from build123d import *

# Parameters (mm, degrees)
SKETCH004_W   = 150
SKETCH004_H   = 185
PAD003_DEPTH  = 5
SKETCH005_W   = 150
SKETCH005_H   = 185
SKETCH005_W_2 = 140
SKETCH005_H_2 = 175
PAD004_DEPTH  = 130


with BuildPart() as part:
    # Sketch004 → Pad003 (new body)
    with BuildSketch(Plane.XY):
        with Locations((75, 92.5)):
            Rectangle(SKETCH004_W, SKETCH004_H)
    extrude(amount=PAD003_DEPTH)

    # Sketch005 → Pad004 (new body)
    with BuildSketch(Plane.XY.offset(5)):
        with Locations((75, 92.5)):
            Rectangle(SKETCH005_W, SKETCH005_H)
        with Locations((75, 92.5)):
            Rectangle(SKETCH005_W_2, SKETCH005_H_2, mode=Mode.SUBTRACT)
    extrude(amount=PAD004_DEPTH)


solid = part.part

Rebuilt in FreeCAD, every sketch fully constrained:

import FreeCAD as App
import Part
import Sketcher

V = App.Vector

doc = App.newDocument("Part")
params = doc.addObject("Spreadsheet::Sheet", "Params")
for row, (alias, value) in enumerate([
    ("sketch1_width", "150 mm"),
    ("sketch1_height", "185 mm"),
    ("pad1_length", "5 mm"),
    ("sketch2_width", "150 mm"),
    ("sketch2_width2", "140 mm"),
    ("sketch2_height", "185 mm"),
    ("sketch2_height2", "175 mm"),
    ("pad2_length", "130 mm"),
], start=1):
    params.set(f"A{row}", alias)
    params.set(f"B{row}", "=" + value)
    params.setAlias(f"B{row}", alias)

body = doc.addObject("PartDesign::Body", "Body")

# Sketch on XY plane
sketch1 = body.newObject("Sketcher::SketchObject", "Sketch")
sketch1.AttachmentSupport = (doc.getObject("XY_Plane"), [""])
sketch1.MapMode = "FlatFace"
sketch1.addGeometry(Part.LineSegment(V(0, 185, 0), V(0, 0, 0)), False)
sketch1.addGeometry(Part.LineSegment(V(0, 0, 0), V(150, 0, 0)), False)
sketch1.addGeometry(Part.LineSegment(V(150, 0, 0), V(150, 185, 0)), False)
sketch1.addGeometry(Part.LineSegment(V(150, 185, 0), V(0, 185, 0)), False)
sketch1.addConstraint(Sketcher.Constraint("Coincident", 0, 2, 1, 1))
sketch1.addConstraint(Sketcher.Constraint("Coincident", 1, 2, 2, 1))
sketch1.addConstraint(Sketcher.Constraint("Coincident", 2, 2, 3, 1))
sketch1.addConstraint(Sketcher.Constraint("Coincident", 3, 2, 0, 1))
sketch1.addConstraint(Sketcher.Constraint("Vertical", 0))
sketch1.addConstraint(Sketcher.Constraint("Horizontal", 1))
sketch1.addConstraint(Sketcher.Constraint("Vertical", 2))
sketch1.addConstraint(Sketcher.Constraint("Horizontal", 3))
sketch1.addConstraint(Sketcher.Constraint("Coincident", 0, 2, -1, 1))
sketch1.addConstraint(Sketcher.Constraint("DistanceX", 1, 1, 1, 2, 150.0))
sketch1.addConstraint(Sketcher.Constraint("DistanceY", 0, 2, 0, 1, 185.0))
sketch1.setExpression("Constraints[9]", "Params.sketch1_width")
sketch1.setExpression("Constraints[10]", "Params.sketch1_height")
pad1 = body.newObject("PartDesign::Pad", "Pad")
pad1.Profile = sketch1
pad1.setExpression("Length", "Params.pad1_length")

# Sketch on XY plane
sketch2 = body.newObject("Sketcher::SketchObject", "Sketch001")
sketch2.AttachmentSupport = (doc.getObject("XY_Plane"), [""])
sketch2.MapMode = "FlatFace"
sketch2.AttachmentOffset = App.Placement(V(0, 0, 5), App.Rotation())
sketch2.addGeometry(Part.LineSegment(V(0, 185, 0), V(0, 0, 0)), False)
sketch2.addGeometry(Part.LineSegment(V(0, 0, 0), V(150, 0, 0)), False)
sketch2.addGeometry(Part.LineSegment(V(150, 0, 0), V(150, 185, 0)), False)
sketch2.addGeometry(Part.LineSegment(V(150, 185, 0), V(0, 185, 0)), False)
sketch2.addGeometry(Part.LineSegment(V(145, 5, 0), V(5, 5, 0)), False)
sketch2.addGeometry(Part.LineSegment(V(5, 5, 0), V(5, 180, 0)), False)
sketch2.addGeometry(Part.LineSegment(V(5, 180, 0), V(145, 180, 0)), False)
sketch2.addGeometry(Part.LineSegment(V(145, 180, 0), V(145, 5, 0)), False)
sketch2.addConstraint(Sketcher.Constraint("Coincident", 0, 2, 1, 1))
sketch2.addConstraint(Sketcher.Constraint("Coincident", 1, 2, 2, 1))
sketch2.addConstraint(Sketcher.Constraint("Coincident", 2, 2, 3, 1))
sketch2.addConstraint(Sketcher.Constraint("Coincident", 3, 2, 0, 1))
sketch2.addConstraint(Sketcher.Constraint("Coincident", 4, 2, 5, 1))
sketch2.addConstraint(Sketcher.Constraint("Coincident", 5, 2, 6, 1))
sketch2.addConstraint(Sketcher.Constraint("Coincident", 6, 2, 7, 1))
sketch2.addConstraint(Sketcher.Constraint("Coincident", 7, 2, 4, 1))
sketch2.addConstraint(Sketcher.Constraint("Vertical", 0))
sketch2.addConstraint(Sketcher.Constraint("Horizontal", 1))
sketch2.addConstraint(Sketcher.Constraint("Vertical", 2))
sketch2.addConstraint(Sketcher.Constraint("Horizontal", 3))
sketch2.addConstraint(Sketcher.Constraint("Horizontal", 4))
sketch2.addConstraint(Sketcher.Constraint("Vertical", 5))
sketch2.addConstraint(Sketcher.Constraint("Horizontal", 6))
sketch2.addConstraint(Sketcher.Constraint("Vertical", 7))
sketch2.addConstraint(Sketcher.Constraint("Coincident", 0, 2, -1, 1))
sketch2.addConstraint(Sketcher.Constraint("DistanceX", 1, 1, 1, 2, 150.0))
sketch2.addConstraint(Sketcher.Constraint("DistanceX", 4, 2, 4, 1, 140.0))
sketch2.addConstraint(Sketcher.Constraint("DistanceY", 0, 2, 0, 1, 185.0))
sketch2.addConstraint(Sketcher.Constraint("DistanceY", 5, 1, 5, 2, 175.0))
sketch2.addConstraint(Sketcher.Constraint("DistanceX", -1, 1, 4, 2, 5.0))
sketch2.addConstraint(Sketcher.Constraint("DistanceY", -1, 1, 4, 2, 5.0))
sketch2.setExpression("Constraints[17]", "Params.sketch2_width")
sketch2.setExpression("Constraints[18]", "Params.sketch2_width2")
sketch2.setExpression("Constraints[19]", "Params.sketch2_height")
sketch2.setExpression("Constraints[20]", "Params.sketch2_height2")
pad2 = body.newObject("PartDesign::Pad", "Pad001")
pad2.Profile = sketch2
pad2.setExpression("Length", "Params.pad2_length")

doc.recompute()
